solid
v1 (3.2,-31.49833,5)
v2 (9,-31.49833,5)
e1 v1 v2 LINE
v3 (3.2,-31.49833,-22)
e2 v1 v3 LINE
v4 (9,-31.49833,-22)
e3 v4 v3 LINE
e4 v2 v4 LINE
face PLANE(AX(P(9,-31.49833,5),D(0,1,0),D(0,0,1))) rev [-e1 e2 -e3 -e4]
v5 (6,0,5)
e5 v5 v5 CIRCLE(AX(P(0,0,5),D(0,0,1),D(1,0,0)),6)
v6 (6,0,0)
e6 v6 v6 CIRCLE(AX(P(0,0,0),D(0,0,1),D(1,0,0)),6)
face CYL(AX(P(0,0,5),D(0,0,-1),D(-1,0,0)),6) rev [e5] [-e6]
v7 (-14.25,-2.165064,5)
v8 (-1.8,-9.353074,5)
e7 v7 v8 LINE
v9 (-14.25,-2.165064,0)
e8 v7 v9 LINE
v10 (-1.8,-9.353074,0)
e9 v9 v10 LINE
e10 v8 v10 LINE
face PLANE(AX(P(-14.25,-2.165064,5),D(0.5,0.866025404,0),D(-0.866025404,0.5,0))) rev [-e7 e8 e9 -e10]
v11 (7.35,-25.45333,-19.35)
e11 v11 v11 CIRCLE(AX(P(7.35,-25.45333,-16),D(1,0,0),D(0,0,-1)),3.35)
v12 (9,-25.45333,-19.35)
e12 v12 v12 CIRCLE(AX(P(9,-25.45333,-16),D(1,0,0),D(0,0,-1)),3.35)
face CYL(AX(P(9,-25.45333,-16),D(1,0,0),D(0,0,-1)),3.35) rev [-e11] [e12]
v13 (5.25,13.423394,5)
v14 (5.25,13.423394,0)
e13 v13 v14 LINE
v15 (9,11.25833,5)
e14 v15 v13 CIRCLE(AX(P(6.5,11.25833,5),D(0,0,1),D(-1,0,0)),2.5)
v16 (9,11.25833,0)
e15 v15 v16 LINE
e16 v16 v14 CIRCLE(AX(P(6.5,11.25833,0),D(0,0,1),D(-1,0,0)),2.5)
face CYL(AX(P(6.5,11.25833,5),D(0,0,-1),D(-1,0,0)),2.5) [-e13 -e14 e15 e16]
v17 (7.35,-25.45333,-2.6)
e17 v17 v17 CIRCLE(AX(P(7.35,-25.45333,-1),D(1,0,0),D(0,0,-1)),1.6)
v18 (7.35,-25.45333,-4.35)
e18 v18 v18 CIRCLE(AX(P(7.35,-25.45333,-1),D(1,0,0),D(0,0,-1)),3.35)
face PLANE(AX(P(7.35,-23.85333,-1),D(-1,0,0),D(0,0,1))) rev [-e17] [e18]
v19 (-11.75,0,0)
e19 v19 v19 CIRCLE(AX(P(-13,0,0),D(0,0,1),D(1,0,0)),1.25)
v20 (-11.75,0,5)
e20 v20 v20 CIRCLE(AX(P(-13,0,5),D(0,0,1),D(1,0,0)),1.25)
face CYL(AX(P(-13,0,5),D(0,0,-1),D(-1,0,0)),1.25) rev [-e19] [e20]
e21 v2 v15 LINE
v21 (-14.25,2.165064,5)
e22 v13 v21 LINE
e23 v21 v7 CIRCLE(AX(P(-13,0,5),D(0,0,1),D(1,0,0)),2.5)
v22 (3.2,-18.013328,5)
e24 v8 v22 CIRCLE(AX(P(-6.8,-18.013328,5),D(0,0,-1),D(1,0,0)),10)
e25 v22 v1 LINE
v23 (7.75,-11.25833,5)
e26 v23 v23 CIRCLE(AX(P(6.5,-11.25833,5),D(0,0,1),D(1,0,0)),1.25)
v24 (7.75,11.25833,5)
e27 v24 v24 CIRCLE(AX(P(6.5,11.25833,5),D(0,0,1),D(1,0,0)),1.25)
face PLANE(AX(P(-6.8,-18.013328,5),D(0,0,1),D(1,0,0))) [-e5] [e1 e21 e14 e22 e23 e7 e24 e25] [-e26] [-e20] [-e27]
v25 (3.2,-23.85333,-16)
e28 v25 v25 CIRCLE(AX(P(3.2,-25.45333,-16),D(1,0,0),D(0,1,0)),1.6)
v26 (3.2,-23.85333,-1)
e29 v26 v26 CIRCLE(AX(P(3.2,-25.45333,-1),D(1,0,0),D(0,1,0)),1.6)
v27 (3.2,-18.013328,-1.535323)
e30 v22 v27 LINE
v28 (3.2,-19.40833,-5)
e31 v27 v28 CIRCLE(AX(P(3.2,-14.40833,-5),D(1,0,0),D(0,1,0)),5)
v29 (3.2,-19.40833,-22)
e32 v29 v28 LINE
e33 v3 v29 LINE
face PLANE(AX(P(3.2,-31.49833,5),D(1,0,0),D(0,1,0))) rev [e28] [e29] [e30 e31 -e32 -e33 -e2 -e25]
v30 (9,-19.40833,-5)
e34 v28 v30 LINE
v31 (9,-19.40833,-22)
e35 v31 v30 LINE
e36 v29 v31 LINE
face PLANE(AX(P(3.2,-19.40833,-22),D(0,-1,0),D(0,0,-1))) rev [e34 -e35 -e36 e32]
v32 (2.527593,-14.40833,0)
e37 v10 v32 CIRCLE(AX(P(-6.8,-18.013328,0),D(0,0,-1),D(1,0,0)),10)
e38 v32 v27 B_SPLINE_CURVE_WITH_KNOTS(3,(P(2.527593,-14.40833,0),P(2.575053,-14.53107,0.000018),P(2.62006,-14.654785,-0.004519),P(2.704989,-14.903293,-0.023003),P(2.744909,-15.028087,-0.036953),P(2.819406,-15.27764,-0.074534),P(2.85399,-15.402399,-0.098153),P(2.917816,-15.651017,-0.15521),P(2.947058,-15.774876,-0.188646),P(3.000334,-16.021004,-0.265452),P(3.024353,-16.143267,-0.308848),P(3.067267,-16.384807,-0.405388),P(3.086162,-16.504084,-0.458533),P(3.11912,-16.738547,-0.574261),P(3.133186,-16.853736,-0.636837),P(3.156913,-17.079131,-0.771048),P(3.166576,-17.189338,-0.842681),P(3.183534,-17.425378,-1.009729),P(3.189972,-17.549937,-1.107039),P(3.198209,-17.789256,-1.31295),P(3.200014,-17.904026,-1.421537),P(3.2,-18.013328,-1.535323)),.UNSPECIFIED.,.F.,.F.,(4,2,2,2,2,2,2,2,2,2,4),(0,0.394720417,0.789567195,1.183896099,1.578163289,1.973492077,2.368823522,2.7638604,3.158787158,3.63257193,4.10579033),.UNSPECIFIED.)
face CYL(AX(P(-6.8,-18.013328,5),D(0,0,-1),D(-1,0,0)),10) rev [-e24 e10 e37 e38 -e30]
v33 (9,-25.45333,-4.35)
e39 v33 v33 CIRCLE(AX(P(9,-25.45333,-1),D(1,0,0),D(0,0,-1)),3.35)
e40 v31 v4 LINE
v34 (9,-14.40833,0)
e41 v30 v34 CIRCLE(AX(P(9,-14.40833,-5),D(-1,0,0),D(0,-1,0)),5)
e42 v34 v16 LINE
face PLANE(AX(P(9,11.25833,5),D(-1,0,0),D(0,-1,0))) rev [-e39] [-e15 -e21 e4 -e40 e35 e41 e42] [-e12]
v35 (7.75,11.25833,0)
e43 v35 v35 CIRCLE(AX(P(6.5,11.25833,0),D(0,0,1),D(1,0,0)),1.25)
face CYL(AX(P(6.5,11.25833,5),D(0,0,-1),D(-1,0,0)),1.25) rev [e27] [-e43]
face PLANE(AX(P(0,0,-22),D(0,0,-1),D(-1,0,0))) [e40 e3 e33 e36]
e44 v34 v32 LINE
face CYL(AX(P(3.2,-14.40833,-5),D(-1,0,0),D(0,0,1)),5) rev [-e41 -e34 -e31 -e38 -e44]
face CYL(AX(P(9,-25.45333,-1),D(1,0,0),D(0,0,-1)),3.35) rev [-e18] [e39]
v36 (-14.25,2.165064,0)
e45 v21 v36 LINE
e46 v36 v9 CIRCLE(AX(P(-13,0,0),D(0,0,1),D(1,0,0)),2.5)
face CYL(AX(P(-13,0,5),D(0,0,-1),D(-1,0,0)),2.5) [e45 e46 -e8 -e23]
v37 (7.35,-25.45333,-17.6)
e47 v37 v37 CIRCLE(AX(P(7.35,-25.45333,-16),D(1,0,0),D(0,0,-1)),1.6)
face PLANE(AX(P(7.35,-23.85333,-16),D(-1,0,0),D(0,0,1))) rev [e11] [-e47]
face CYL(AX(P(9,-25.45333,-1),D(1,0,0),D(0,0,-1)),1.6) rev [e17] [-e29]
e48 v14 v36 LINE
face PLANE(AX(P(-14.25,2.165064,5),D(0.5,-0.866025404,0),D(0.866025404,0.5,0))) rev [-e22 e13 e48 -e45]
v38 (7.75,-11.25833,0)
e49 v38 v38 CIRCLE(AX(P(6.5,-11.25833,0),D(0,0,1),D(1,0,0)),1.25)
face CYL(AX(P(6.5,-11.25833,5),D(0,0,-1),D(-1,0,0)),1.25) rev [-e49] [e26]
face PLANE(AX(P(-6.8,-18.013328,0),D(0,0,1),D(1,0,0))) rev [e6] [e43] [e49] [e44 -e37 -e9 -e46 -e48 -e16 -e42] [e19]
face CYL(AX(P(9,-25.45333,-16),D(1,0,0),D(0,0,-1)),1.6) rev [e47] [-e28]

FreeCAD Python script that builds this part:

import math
import FreeCAD as App
import Part
import Sketcher
Q = App.Units.Quantity


def edges_at(feature, points):
    """Names of the edges that pass closest to the given points."""
    edges = feature.Shape.Edges
    near = lambda p: min(range(len(edges)), key=lambda i: edges[i].distToShape(Part.Vertex(*p))[0])
    return sorted({f"Edge{near(p) + 1}" for p in points})

doc = App.newDocument("Part")
body = doc.addObject("PartDesign::Body", "Body")

# Sketch on XY plane
sketch1 = body.newObject("Sketcher::SketchObject", "Sketch")
sketch1.AttachmentSupport = (doc.getObject("XY_Plane"), [""])
sketch1.MapMode = "FlatFace"
sketch1.addGeometry([
    Part.LineSegment(App.Vector(5.25, 13.423394, 0), App.Vector(-14.25, 2.165064, 0)),  # 0
    Part.ArcOfCircle(Part.Circle(App.Vector(-13, 0, 0), App.Vector(0, 0, 1), 2.5), math.radians(120), math.radians(240)),  # 1
    Part.LineSegment(App.Vector(-14.25, -2.165064, 0), App.Vector(-1.8, -9.353074, 0)),  # 2
    Part.ArcOfCircle(Part.Circle(App.Vector(-6.8, -18.013328, 0), App.Vector(0, 0, 1), 10), math.radians(0), math.radians(60)),  # 3
    Part.LineSegment(App.Vector(3.2, -18.013328, 0), App.Vector(3.2, -31.49833, 0)),  # 4
    Part.LineSegment(App.Vector(3.2, -31.49833, 0), App.Vector(9, -31.49833, 0)),  # 5
    Part.LineSegment(App.Vector(9, -31.49833, 0), App.Vector(9, 11.25833, 0)),  # 6
    Part.ArcOfCircle(Part.Circle(App.Vector(6.5, 11.25833, 0), App.Vector(0, 0, 1), 2.5), math.radians(0), math.radians(120)),  # 7
    Part.Circle(App.Vector(6.5, -11.25833, 0), App.Vector(0, 0, 1), 1.25),  # 8
    Part.Circle(App.Vector(0, 0, 0), App.Vector(0, 0, 1), 6),  # 9
    Part.Circle(App.Vector(6.5, 11.25833, 0), App.Vector(0, 0, 1), 1.25),  # 10
    Part.Circle(App.Vector(-13, 0, 0), App.Vector(0, 0, 1), 1.25),  # 11
], False)
sketch1.addConstraint([
    Sketcher.Constraint("Tangent", 0, 2, 1, 1),
    Sketcher.Constraint("Tangent", 1, 2, 2, 1),
    Sketcher.Constraint("Tangent", 2, 2, 3, 2),
    Sketcher.Constraint("Tangent", 3, 1, 4, 1),
    Sketcher.Constraint("Coincident", 4, 2, 5, 1),
    Sketcher.Constraint("Coincident", 5, 2, 6, 1),
    Sketcher.Constraint("Tangent", 6, 2, 7, 1),
    Sketcher.Constraint("Tangent", 7, 2, 0, 1),
    Sketcher.Constraint("Vertical", 4),
    Sketcher.Constraint("Horizontal", 5),
    Sketcher.Constraint("Vertical", 6),
    Sketcher.Constraint("Coincident", 9, 3, -1, 1),
    Sketcher.Constraint("Coincident", 10, 3, 7, 3),
    Sketcher.Constraint("Coincident", 11, 3, 1, 3),
    Sketcher.Constraint("Equal", 1, 7),
    Sketcher.Constraint("Equal", 8, 10),
    Sketcher.Constraint("Equal", 10, 11),
    Sketcher.Constraint("Symmetric", 7, 3, 8, 3, -1),
    Sketcher.Constraint("Symmetric", 0, 2, 1, 2, -1),
    Sketcher.Constraint("Diameter", 9, Q("12 mm")),
    Sketcher.Constraint("Radius", 3, Q("10 mm")),
    Sketcher.Constraint("Diameter", 8, Q("2.5 mm")),
    Sketcher.Constraint("Radius", 1, Q("2.5 mm")),
    Sketcher.Constraint("Angle", 0, Q("-150 deg")),
    Sketcher.Constraint("DistanceX", 5, 1, 5, 2, Q("5.8 mm")),
    Sketcher.Constraint("DistanceX", 1, 3, -1, 1, Q("13 mm")),
    Sketcher.Constraint("DistanceX", -1, 1, 5, 2, Q("9 mm")),
    Sketcher.Constraint("DistanceY", 4, 2, 4, 1, Q("13.485002 mm")),
])
pad1 = body.newObject("PartDesign::Pad", "Pad")
pad1.Profile = sketch1
pad1.Length = 5

# Sketch on XY plane
sketch2 = body.newObject("Sketcher::SketchObject", "Sketch001")
sketch2.AttachmentSupport = (doc.getObject("XY_Plane"), [""])
sketch2.MapMode = "FlatFace"
sketch2.addGeometry([
    Part.LineSegment(App.Vector(9, -19.40833, 0), App.Vector(9, -31.49833, 0)),
    Part.LineSegment(App.Vector(9, -31.49833, 0), App.Vector(3.2, -31.49833, 0)),
    Part.LineSegment(App.Vector(3.2, -31.49833, 0), App.Vector(3.2, -19.40833, 0)),
    Part.LineSegment(App.Vector(3.2, -19.40833, 0), App.Vector(9, -19.40833, 0)),
], False)
sketch2.addConstraint([
    Sketcher.Constraint("Coincident", 0, 2, 1, 1),
    Sketcher.Constraint("Coincident", 1, 2, 2, 1),
    Sketcher.Constraint("Coincident", 2, 2, 3, 1),
    Sketcher.Constraint("Coincident", 3, 2, 0, 1),
    Sketcher.Constraint("Vertical", 0),
    Sketcher.Constraint("Horizontal", 1),
    Sketcher.Constraint("Vertical", 2),
    Sketcher.Constraint("Horizontal", 3),
    Sketcher.Constraint("DistanceX", 1, 2, 1, 1, Q("5.8 mm")),
    Sketcher.Constraint("DistanceX", -1, 1, 0, 2, Q("9 mm")),
    Sketcher.Constraint("DistanceY", 0, 2, 0, 1, Q("12.09 mm")),
    Sketcher.Constraint("DistanceY", 0, 2, -1, 1, Q("31.49833 mm")),
])
pad2 = body.newObject("PartDesign::Pad", "Pad001")
pad2.Profile = sketch2
pad2.Length = 22
pad2.Reversed = True

# Sketch on YZ plane
sketch3 = body.newObject("Sketcher::SketchObject", "Sketch002")
sketch3.AttachmentSupport = (doc.getObject("YZ_Plane"), [""])
sketch3.MapMode = "FlatFace"
sketch3.AttachmentOffset = App.Placement(App.Vector(0, 0, 9), App.Rotation())
sketch3.addGeometry([
    Part.Circle(App.Vector(-25.45333, -1, 0), App.Vector(0, 0, 1), 1.6),
    Part.Circle(App.Vector(-25.45333, -16, 0), App.Vector(0, 0, 1), 1.6),
], False)
sketch3.addConstraint([
    Sketcher.Constraint("Equal", 0, 1),
    Sketcher.Constraint("Vertical", 0, 3, 1, 3),
    Sketcher.Constraint("Diameter", 0, Q("3.2 mm")),
    Sketcher.Constraint("DistanceY", 0, 3, -1, 1, Q("1 mm")),
    Sketcher.Constraint("DistanceY", 1, 3, -1, 1, Q("16 mm")),
    Sketcher.Constraint("DistanceX", 0, 3, -1, 1, Q("25.45333 mm")),
])
doc.recompute()
hole = body.newObject("PartDesign::Hole", "Hole")
hole.Profile = sketch3
hole.ThreadType = "None"
hole.Diameter = 3.2
hole.DepthType = "Dimension"
hole.Depth = 5.8
hole.DrillPoint = "Flat"
hole.HoleCutType = "Counterbore"
hole.HoleCutDiameter = 6.7
hole.HoleCutDepth = 1.65
doc.recompute()

fillet = body.newObject("PartDesign::Fillet", "Fillet")
fillet.Base = (hole, edges_at(hole, [(6.1, -19.408, 0)]))
fillet.Radius = 5

doc.recompute()
